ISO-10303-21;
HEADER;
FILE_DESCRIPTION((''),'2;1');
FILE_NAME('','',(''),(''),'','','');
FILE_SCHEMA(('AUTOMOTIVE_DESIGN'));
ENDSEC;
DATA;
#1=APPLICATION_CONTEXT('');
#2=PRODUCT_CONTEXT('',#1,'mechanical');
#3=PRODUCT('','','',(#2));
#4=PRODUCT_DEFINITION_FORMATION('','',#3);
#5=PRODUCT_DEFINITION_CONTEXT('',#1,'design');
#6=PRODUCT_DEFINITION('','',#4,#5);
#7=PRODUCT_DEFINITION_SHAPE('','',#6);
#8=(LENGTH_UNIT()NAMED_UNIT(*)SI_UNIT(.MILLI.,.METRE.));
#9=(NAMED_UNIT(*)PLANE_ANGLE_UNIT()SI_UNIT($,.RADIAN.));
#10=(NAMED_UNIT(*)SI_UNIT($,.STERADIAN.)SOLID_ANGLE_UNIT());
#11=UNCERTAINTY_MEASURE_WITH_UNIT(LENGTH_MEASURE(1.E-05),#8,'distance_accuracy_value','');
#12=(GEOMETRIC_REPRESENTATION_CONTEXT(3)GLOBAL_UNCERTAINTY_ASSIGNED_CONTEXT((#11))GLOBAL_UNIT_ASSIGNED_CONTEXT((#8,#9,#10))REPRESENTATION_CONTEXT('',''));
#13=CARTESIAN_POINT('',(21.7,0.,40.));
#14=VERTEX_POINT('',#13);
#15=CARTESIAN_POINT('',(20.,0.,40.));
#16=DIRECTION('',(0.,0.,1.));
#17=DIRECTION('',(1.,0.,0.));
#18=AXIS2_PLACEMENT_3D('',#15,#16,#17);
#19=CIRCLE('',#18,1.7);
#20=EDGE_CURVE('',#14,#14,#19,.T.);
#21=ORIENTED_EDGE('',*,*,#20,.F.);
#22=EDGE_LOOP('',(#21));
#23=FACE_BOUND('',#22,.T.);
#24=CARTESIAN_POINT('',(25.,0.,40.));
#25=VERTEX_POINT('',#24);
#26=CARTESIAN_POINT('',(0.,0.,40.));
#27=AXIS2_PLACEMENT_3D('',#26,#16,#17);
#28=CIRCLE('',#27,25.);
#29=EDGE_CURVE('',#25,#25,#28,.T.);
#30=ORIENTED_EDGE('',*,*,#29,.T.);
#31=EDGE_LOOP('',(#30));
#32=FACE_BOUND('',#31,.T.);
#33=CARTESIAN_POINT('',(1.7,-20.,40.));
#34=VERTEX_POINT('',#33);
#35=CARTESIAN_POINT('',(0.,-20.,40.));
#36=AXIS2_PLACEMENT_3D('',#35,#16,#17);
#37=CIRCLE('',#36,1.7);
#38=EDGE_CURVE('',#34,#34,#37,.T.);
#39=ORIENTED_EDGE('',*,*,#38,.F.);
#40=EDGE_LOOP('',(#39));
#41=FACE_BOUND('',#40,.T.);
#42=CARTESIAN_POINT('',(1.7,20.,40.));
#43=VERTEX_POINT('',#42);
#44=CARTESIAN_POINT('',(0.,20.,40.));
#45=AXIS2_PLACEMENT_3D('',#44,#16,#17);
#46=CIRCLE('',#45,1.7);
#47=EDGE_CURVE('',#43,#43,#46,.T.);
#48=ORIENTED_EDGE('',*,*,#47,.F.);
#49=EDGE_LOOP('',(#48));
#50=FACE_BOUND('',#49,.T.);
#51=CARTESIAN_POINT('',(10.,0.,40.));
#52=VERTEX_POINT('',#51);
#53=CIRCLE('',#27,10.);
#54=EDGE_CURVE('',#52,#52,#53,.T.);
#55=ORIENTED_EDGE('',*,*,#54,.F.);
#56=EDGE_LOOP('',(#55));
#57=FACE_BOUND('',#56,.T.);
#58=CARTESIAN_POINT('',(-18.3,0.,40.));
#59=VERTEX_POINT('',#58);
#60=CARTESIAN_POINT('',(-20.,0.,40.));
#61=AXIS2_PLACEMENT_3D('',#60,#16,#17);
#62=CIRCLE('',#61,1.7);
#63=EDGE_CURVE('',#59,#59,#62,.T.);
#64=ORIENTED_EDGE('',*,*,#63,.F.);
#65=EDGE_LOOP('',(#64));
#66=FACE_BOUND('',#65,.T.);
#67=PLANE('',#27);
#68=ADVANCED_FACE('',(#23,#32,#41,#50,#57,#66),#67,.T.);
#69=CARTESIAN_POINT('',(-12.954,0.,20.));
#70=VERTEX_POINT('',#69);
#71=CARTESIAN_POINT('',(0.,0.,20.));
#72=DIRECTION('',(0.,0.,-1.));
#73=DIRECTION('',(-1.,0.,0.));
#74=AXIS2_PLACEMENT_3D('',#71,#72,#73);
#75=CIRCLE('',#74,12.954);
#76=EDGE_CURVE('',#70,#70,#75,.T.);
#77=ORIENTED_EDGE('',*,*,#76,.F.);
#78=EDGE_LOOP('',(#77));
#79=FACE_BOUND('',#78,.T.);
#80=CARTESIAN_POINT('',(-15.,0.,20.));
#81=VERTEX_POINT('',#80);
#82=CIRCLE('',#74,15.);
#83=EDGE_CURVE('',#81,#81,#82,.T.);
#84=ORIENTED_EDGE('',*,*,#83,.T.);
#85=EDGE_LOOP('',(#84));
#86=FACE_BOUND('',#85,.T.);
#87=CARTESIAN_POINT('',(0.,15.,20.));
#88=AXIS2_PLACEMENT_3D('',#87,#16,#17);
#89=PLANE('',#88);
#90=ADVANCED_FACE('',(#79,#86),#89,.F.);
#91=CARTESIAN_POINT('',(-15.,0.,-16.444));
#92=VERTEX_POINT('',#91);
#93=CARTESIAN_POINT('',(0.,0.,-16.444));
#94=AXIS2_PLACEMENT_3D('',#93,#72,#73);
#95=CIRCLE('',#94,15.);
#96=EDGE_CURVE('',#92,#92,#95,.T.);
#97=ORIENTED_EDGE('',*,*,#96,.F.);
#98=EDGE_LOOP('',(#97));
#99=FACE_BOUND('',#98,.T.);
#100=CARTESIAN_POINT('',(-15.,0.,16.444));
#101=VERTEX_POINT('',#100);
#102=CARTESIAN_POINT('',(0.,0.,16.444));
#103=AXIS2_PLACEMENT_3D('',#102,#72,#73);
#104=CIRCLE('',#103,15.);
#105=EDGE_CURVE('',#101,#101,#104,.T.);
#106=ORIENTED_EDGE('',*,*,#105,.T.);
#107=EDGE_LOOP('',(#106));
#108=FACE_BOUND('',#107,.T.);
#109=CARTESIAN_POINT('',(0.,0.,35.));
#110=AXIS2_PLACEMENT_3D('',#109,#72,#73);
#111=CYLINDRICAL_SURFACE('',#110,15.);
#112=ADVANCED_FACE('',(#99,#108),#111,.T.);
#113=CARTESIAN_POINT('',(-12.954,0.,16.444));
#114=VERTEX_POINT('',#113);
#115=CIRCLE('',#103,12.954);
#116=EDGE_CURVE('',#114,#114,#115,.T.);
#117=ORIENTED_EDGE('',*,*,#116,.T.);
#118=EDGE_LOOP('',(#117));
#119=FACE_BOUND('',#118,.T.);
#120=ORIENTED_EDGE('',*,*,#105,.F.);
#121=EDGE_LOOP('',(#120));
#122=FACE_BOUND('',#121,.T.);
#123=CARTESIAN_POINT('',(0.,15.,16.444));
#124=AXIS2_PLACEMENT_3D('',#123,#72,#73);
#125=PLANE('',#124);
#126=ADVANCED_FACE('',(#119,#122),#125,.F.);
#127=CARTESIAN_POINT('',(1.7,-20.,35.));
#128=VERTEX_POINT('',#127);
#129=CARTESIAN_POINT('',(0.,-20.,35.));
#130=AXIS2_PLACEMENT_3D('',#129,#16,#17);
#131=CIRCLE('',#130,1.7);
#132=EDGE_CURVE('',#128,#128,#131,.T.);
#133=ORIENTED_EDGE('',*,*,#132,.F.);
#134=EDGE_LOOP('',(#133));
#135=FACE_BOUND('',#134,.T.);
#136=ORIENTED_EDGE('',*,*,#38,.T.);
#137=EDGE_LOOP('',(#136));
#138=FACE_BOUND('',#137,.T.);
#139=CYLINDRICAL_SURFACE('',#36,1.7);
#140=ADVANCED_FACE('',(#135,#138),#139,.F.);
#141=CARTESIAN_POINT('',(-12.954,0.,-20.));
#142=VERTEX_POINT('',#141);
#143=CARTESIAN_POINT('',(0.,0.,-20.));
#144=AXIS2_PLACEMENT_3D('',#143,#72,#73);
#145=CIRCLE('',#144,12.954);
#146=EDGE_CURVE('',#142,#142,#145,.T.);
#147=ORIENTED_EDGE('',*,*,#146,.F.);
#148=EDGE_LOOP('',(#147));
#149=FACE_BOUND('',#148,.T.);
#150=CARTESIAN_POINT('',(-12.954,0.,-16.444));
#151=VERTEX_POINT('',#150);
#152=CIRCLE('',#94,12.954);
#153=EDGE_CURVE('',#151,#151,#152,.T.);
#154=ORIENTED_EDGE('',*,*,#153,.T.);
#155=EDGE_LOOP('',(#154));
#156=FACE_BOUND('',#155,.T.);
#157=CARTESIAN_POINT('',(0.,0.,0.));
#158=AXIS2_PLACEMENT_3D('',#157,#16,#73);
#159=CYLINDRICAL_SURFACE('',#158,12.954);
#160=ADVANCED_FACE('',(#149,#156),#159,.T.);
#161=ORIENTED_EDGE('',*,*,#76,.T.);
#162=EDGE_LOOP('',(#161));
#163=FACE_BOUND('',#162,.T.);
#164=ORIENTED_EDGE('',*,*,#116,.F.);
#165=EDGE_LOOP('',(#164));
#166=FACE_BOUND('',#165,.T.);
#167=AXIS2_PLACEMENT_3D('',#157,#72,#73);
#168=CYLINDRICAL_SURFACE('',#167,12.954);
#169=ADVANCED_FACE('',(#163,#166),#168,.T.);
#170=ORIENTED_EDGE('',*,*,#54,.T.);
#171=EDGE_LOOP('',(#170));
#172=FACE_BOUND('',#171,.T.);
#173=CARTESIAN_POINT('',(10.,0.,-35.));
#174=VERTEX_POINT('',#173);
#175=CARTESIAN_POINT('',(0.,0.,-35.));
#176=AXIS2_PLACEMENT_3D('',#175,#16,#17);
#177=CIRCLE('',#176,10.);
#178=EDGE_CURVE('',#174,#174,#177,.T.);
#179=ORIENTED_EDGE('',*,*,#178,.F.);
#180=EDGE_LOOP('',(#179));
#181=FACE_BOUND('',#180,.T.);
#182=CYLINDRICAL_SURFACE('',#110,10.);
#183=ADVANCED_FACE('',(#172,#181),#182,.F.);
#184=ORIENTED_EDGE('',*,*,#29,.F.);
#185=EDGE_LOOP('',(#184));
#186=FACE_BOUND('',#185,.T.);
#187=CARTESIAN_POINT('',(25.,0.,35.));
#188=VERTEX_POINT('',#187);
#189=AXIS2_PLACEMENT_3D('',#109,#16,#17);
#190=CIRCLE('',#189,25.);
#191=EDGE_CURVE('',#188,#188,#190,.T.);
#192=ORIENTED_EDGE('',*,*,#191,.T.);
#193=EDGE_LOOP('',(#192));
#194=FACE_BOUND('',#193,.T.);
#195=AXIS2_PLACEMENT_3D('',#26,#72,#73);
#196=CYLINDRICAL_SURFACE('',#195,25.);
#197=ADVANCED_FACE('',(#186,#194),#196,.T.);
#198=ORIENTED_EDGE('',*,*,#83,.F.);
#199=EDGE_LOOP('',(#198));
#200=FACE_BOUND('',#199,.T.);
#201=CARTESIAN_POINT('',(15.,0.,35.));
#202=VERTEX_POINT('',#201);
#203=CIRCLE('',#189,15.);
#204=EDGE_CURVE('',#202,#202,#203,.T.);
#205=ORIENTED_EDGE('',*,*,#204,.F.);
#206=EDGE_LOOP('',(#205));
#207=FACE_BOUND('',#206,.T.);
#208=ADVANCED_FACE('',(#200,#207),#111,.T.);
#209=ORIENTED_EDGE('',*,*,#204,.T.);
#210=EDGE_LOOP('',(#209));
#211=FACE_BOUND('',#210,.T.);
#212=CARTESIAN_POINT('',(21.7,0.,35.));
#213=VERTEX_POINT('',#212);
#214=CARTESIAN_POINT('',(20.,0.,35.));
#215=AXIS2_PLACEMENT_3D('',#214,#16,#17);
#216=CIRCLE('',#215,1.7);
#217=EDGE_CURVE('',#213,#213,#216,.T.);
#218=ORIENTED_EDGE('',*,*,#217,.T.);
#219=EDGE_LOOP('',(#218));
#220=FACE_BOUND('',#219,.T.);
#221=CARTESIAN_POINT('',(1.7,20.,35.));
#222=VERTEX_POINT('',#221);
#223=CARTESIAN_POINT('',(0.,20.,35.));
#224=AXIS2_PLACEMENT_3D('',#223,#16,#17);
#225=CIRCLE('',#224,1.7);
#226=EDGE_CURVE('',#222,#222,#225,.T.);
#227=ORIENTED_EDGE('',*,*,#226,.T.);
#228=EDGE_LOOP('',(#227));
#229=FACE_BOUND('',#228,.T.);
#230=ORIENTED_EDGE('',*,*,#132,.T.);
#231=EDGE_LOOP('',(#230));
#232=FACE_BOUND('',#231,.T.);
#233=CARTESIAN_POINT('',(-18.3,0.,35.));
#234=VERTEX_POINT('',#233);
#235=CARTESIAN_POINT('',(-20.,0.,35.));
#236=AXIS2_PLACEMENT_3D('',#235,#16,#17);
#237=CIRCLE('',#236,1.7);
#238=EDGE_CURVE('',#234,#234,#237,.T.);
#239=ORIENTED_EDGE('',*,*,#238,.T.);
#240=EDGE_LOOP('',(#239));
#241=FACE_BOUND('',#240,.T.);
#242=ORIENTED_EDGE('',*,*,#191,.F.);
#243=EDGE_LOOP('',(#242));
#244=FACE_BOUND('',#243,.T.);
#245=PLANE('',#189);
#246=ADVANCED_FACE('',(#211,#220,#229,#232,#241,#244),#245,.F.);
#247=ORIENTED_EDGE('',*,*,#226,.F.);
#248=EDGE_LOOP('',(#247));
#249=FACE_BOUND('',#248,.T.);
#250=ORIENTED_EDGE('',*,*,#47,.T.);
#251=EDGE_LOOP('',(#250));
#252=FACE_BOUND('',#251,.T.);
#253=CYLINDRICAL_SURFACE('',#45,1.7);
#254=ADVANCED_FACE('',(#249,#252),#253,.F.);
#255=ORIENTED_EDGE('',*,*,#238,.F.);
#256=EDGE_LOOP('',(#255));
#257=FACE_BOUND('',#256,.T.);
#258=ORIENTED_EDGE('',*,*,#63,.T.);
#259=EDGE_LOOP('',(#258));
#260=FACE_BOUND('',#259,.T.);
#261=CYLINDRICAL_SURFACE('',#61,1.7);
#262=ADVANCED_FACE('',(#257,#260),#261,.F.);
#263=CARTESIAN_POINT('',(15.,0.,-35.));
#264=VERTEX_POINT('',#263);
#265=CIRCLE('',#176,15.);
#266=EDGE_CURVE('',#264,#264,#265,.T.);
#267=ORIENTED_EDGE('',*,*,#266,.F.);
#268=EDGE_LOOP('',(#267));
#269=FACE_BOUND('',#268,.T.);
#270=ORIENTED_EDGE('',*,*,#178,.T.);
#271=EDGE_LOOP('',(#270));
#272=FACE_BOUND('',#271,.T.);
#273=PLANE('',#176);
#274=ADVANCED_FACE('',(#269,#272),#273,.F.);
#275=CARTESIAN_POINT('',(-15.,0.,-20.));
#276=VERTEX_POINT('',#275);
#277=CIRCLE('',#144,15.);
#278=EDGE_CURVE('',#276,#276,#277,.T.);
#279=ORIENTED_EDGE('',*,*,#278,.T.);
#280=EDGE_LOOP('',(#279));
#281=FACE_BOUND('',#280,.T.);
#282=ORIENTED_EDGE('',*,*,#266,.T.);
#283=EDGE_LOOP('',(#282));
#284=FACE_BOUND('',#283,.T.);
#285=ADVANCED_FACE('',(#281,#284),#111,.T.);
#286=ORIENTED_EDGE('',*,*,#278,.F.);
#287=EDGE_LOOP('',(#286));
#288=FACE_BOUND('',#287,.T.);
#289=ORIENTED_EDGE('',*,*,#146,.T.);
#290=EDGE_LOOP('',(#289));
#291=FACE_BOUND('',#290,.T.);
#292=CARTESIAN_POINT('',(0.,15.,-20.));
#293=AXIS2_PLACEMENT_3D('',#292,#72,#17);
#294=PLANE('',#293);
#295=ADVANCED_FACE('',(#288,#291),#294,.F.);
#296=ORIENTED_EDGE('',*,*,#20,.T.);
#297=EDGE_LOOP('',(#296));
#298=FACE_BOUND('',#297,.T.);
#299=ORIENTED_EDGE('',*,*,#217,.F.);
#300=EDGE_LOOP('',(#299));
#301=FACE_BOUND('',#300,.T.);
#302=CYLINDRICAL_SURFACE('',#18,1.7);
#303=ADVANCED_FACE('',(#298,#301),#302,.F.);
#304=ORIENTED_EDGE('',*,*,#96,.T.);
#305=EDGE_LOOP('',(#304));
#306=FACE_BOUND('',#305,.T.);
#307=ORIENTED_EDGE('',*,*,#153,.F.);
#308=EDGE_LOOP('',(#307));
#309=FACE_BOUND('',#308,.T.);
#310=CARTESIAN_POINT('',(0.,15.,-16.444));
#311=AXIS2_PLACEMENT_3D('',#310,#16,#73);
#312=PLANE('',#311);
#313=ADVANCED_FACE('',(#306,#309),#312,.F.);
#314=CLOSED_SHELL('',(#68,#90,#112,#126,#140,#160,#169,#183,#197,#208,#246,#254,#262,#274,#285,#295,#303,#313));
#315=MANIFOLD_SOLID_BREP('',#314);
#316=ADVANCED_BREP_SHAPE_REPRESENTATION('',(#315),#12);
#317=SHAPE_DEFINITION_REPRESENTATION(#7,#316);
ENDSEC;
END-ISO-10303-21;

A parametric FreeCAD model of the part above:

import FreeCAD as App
import Part
import Sketcher
from FreeCAD import Vector
Q = App.Units.Quantity

doc = App.newDocument("Part")
body = doc.addObject("PartDesign::Body", "Body")

sketch1 = body.newObject("Sketcher::SketchObject", "Sketch")
sketch1.AttachmentSupport = (doc.getObject("XY_Plane"), [""])
sketch1.MapMode = "FlatFace"
sketch1.addGeometry(Part.Circle(Vector(0, 0, 0), Vector(0, 0, 1), 15), False)
sketch1.addGeometry(Part.Circle(Vector(0, 0, 0), Vector(0, 0, 1), 10), False)
sketch1.addConstraint(Sketcher.Constraint("Coincident", 0, 3, -1, 1))
sketch1.addConstraint(Sketcher.Constraint("Coincident", 1, 3, -1, 1))
sketch1.addConstraint(Sketcher.Constraint("Diameter", 0, Q("30 mm")))
sketch1.addConstraint(Sketcher.Constraint("Diameter", 1, Q("20 mm")))
pad1 = body.newObject("PartDesign::Pad", "Pad")
pad1.Profile = sketch1
pad1.Length = 70
pad1.Midplane = True

sketch2 = body.newObject("Sketcher::SketchObject", "Sketch001")
sketch2.AttachmentSupport = (doc.getObject("YZ_Plane"), [""])
sketch2.MapMode = "FlatFace"
sketch2.addGeometry(Part.LineSegment(Vector(15, 20, 0), Vector(12.954, 20, 0)), False)
sketch2.addGeometry(Part.LineSegment(Vector(12.954, 20, 0), Vector(12.954, 16.444, 0)), False)
sketch2.addGeometry(Part.LineSegment(Vector(12.954, 16.444, 0), Vector(15, 16.444, 0)), False)
sketch2.addGeometry(Part.LineSegment(Vector(15, 16.444, 0), Vector(15, 20, 0)), False)
sketch2.addConstraint(Sketcher.Constraint("Coincident", 0, 2, 1, 1))
sketch2.addConstraint(Sketcher.Constraint("Coincident", 1, 2, 2, 1))
sketch2.addConstraint(Sketcher.Constraint("Coincident", 2, 2, 3, 1))
sketch2.addConstraint(Sketcher.Constraint("Coincident", 3, 2, 0, 1))
sketch2.addConstraint(Sketcher.Constraint("Horizontal", 0))
sketch2.addConstraint(Sketcher.Constraint("Vertical", 1))
sketch2.addConstraint(Sketcher.Constraint("Horizontal", 2))
sketch2.addConstraint(Sketcher.Constraint("Vertical", 3))
sketch2.addConstraint(Sketcher.Constraint("DistanceY", -1, 1, 0, 2, Q("20 mm")))
sketch2.addConstraint(Sketcher.Constraint("DistanceX", -1, 1, 2, 2, Q("15 mm")))
sketch2.addConstraint(Sketcher.Constraint("DistanceX", 0, 2, 0, 1, Q("2.046 mm")))
sketch2.addConstraint(Sketcher.Constraint("DistanceY", 1, 2, 1, 1, Q("3.556 mm")))
groove = body.newObject("PartDesign::Groove", "Groove")
groove.Profile = sketch2
groove.ReferenceAxis = (sketch2, ["V_Axis"])
groove.Angle = 360
doc.recompute()

mirrored = body.newObject("PartDesign::Mirrored", "Mirrored")
mirrored.Originals = [groove]
mirrored.MirrorPlane = (doc.getObject("XY_Plane"), [""])
body.Tip = mirrored

sketch3 = body.newObject("Sketcher::SketchObject", "Sketch002")
sketch3.AttachmentSupport = (doc.getObject("XY_Plane"), [""])
sketch3.MapMode = "FlatFace"
sketch3.AttachmentOffset = App.Placement(Vector(0, 0, 35), App.Rotation())
sketch3.addGeometry(Part.Circle(Vector(0, 0, 0), Vector(0, 0, 1), 25), False)
sketch3.addGeometry(Part.Circle(Vector(0, 0, 0), Vector(0, 0, 1), 10), False)
sketch3.addConstraint(Sketcher.Constraint("Coincident", 0, 3, -1, 1))
sketch3.addConstraint(Sketcher.Constraint("Coincident", 1, 3, -1, 1))
sketch3.addConstraint(Sketcher.Constraint("Diameter", 0, Q("50 mm")))
sketch3.addConstraint(Sketcher.Constraint("Diameter", 1, Q("20 mm")))
pad2 = body.newObject("PartDesign::Pad", "Pad001")
pad2.Profile = sketch3
pad2.Length = 5

sketch4 = body.newObject("Sketcher::SketchObject", "Sketch003")
sketch4.AttachmentSupport = (doc.getObject("YZ_Plane"), [""])
sketch4.MapMode = "FlatFace"
sketch4.AttachmentOffset = App.Placement(Vector(0, 0, 20), App.Rotation())
sketch4.addGeometry(Part.LineSegment(Vector(0, 21.478537, 0), Vector(0, 40, 0)), False)
sketch4.addGeometry(Part.LineSegment(Vector(0, 40, 0), Vector(-1.7, 40, 0)), False)
sketch4.addGeometry(Part.LineSegment(Vector(-1.7, 40, 0), Vector(-1.7, 22.5, 0)), False)
sketch4.addGeometry(Part.LineSegment(Vector(-1.7, 22.5, 0), Vector(0, 21.478537, 0)), False)
sketch4.addConstraint(Sketcher.Constraint("Coincident", 0, 2, 1, 1))
sketch4.addConstraint(Sketcher.Constraint("Coincident", 1, 2, 2, 1))
sketch4.addConstraint(Sketcher.Constraint("Coincident", 2, 2, 3, 1))
sketch4.addConstraint(Sketcher.Constraint("Coincident", 3, 2, 0, 1))
sketch4.addConstraint(Sketcher.Constraint("Vertical", 0))
sketch4.addConstraint(Sketcher.Constraint("Horizontal", 1))
sketch4.addConstraint(Sketcher.Constraint("Vertical", 2))
sketch4.addConstraint(Sketcher.Constraint("PointOnObject", 0, 2, -2))
sketch4.addConstraint(Sketcher.Constraint("Angle", 3, Q("-31 deg")))
sketch4.addConstraint(Sketcher.Constraint("DistanceX", 1, 2, 1, 1, Q("1.7 mm")))
sketch4.addConstraint(Sketcher.Constraint("DistanceY", 2, 2, 2, 1, Q("17.5 mm")))
sketch4.addConstraint(Sketcher.Constraint("DistanceY", -1, 1, 0, 2, Q("40 mm")))
groove2 = body.newObject("PartDesign::Groove", "Groove001")
groove2.Profile = sketch4
groove2.ReferenceAxis = (sketch4, ["V_Axis"])
groove2.Angle = 360
doc.recompute()

polarpattern = body.newObject("PartDesign::PolarPattern", "PolarPattern")
polarpattern.Originals = [groove2]
polarpattern.Axis = (doc.getObject("Z_Axis"), [""])
polarpattern.Angle = 360
polarpattern.Occurrences = 4
body.Tip = polarpattern

doc.recompute()
